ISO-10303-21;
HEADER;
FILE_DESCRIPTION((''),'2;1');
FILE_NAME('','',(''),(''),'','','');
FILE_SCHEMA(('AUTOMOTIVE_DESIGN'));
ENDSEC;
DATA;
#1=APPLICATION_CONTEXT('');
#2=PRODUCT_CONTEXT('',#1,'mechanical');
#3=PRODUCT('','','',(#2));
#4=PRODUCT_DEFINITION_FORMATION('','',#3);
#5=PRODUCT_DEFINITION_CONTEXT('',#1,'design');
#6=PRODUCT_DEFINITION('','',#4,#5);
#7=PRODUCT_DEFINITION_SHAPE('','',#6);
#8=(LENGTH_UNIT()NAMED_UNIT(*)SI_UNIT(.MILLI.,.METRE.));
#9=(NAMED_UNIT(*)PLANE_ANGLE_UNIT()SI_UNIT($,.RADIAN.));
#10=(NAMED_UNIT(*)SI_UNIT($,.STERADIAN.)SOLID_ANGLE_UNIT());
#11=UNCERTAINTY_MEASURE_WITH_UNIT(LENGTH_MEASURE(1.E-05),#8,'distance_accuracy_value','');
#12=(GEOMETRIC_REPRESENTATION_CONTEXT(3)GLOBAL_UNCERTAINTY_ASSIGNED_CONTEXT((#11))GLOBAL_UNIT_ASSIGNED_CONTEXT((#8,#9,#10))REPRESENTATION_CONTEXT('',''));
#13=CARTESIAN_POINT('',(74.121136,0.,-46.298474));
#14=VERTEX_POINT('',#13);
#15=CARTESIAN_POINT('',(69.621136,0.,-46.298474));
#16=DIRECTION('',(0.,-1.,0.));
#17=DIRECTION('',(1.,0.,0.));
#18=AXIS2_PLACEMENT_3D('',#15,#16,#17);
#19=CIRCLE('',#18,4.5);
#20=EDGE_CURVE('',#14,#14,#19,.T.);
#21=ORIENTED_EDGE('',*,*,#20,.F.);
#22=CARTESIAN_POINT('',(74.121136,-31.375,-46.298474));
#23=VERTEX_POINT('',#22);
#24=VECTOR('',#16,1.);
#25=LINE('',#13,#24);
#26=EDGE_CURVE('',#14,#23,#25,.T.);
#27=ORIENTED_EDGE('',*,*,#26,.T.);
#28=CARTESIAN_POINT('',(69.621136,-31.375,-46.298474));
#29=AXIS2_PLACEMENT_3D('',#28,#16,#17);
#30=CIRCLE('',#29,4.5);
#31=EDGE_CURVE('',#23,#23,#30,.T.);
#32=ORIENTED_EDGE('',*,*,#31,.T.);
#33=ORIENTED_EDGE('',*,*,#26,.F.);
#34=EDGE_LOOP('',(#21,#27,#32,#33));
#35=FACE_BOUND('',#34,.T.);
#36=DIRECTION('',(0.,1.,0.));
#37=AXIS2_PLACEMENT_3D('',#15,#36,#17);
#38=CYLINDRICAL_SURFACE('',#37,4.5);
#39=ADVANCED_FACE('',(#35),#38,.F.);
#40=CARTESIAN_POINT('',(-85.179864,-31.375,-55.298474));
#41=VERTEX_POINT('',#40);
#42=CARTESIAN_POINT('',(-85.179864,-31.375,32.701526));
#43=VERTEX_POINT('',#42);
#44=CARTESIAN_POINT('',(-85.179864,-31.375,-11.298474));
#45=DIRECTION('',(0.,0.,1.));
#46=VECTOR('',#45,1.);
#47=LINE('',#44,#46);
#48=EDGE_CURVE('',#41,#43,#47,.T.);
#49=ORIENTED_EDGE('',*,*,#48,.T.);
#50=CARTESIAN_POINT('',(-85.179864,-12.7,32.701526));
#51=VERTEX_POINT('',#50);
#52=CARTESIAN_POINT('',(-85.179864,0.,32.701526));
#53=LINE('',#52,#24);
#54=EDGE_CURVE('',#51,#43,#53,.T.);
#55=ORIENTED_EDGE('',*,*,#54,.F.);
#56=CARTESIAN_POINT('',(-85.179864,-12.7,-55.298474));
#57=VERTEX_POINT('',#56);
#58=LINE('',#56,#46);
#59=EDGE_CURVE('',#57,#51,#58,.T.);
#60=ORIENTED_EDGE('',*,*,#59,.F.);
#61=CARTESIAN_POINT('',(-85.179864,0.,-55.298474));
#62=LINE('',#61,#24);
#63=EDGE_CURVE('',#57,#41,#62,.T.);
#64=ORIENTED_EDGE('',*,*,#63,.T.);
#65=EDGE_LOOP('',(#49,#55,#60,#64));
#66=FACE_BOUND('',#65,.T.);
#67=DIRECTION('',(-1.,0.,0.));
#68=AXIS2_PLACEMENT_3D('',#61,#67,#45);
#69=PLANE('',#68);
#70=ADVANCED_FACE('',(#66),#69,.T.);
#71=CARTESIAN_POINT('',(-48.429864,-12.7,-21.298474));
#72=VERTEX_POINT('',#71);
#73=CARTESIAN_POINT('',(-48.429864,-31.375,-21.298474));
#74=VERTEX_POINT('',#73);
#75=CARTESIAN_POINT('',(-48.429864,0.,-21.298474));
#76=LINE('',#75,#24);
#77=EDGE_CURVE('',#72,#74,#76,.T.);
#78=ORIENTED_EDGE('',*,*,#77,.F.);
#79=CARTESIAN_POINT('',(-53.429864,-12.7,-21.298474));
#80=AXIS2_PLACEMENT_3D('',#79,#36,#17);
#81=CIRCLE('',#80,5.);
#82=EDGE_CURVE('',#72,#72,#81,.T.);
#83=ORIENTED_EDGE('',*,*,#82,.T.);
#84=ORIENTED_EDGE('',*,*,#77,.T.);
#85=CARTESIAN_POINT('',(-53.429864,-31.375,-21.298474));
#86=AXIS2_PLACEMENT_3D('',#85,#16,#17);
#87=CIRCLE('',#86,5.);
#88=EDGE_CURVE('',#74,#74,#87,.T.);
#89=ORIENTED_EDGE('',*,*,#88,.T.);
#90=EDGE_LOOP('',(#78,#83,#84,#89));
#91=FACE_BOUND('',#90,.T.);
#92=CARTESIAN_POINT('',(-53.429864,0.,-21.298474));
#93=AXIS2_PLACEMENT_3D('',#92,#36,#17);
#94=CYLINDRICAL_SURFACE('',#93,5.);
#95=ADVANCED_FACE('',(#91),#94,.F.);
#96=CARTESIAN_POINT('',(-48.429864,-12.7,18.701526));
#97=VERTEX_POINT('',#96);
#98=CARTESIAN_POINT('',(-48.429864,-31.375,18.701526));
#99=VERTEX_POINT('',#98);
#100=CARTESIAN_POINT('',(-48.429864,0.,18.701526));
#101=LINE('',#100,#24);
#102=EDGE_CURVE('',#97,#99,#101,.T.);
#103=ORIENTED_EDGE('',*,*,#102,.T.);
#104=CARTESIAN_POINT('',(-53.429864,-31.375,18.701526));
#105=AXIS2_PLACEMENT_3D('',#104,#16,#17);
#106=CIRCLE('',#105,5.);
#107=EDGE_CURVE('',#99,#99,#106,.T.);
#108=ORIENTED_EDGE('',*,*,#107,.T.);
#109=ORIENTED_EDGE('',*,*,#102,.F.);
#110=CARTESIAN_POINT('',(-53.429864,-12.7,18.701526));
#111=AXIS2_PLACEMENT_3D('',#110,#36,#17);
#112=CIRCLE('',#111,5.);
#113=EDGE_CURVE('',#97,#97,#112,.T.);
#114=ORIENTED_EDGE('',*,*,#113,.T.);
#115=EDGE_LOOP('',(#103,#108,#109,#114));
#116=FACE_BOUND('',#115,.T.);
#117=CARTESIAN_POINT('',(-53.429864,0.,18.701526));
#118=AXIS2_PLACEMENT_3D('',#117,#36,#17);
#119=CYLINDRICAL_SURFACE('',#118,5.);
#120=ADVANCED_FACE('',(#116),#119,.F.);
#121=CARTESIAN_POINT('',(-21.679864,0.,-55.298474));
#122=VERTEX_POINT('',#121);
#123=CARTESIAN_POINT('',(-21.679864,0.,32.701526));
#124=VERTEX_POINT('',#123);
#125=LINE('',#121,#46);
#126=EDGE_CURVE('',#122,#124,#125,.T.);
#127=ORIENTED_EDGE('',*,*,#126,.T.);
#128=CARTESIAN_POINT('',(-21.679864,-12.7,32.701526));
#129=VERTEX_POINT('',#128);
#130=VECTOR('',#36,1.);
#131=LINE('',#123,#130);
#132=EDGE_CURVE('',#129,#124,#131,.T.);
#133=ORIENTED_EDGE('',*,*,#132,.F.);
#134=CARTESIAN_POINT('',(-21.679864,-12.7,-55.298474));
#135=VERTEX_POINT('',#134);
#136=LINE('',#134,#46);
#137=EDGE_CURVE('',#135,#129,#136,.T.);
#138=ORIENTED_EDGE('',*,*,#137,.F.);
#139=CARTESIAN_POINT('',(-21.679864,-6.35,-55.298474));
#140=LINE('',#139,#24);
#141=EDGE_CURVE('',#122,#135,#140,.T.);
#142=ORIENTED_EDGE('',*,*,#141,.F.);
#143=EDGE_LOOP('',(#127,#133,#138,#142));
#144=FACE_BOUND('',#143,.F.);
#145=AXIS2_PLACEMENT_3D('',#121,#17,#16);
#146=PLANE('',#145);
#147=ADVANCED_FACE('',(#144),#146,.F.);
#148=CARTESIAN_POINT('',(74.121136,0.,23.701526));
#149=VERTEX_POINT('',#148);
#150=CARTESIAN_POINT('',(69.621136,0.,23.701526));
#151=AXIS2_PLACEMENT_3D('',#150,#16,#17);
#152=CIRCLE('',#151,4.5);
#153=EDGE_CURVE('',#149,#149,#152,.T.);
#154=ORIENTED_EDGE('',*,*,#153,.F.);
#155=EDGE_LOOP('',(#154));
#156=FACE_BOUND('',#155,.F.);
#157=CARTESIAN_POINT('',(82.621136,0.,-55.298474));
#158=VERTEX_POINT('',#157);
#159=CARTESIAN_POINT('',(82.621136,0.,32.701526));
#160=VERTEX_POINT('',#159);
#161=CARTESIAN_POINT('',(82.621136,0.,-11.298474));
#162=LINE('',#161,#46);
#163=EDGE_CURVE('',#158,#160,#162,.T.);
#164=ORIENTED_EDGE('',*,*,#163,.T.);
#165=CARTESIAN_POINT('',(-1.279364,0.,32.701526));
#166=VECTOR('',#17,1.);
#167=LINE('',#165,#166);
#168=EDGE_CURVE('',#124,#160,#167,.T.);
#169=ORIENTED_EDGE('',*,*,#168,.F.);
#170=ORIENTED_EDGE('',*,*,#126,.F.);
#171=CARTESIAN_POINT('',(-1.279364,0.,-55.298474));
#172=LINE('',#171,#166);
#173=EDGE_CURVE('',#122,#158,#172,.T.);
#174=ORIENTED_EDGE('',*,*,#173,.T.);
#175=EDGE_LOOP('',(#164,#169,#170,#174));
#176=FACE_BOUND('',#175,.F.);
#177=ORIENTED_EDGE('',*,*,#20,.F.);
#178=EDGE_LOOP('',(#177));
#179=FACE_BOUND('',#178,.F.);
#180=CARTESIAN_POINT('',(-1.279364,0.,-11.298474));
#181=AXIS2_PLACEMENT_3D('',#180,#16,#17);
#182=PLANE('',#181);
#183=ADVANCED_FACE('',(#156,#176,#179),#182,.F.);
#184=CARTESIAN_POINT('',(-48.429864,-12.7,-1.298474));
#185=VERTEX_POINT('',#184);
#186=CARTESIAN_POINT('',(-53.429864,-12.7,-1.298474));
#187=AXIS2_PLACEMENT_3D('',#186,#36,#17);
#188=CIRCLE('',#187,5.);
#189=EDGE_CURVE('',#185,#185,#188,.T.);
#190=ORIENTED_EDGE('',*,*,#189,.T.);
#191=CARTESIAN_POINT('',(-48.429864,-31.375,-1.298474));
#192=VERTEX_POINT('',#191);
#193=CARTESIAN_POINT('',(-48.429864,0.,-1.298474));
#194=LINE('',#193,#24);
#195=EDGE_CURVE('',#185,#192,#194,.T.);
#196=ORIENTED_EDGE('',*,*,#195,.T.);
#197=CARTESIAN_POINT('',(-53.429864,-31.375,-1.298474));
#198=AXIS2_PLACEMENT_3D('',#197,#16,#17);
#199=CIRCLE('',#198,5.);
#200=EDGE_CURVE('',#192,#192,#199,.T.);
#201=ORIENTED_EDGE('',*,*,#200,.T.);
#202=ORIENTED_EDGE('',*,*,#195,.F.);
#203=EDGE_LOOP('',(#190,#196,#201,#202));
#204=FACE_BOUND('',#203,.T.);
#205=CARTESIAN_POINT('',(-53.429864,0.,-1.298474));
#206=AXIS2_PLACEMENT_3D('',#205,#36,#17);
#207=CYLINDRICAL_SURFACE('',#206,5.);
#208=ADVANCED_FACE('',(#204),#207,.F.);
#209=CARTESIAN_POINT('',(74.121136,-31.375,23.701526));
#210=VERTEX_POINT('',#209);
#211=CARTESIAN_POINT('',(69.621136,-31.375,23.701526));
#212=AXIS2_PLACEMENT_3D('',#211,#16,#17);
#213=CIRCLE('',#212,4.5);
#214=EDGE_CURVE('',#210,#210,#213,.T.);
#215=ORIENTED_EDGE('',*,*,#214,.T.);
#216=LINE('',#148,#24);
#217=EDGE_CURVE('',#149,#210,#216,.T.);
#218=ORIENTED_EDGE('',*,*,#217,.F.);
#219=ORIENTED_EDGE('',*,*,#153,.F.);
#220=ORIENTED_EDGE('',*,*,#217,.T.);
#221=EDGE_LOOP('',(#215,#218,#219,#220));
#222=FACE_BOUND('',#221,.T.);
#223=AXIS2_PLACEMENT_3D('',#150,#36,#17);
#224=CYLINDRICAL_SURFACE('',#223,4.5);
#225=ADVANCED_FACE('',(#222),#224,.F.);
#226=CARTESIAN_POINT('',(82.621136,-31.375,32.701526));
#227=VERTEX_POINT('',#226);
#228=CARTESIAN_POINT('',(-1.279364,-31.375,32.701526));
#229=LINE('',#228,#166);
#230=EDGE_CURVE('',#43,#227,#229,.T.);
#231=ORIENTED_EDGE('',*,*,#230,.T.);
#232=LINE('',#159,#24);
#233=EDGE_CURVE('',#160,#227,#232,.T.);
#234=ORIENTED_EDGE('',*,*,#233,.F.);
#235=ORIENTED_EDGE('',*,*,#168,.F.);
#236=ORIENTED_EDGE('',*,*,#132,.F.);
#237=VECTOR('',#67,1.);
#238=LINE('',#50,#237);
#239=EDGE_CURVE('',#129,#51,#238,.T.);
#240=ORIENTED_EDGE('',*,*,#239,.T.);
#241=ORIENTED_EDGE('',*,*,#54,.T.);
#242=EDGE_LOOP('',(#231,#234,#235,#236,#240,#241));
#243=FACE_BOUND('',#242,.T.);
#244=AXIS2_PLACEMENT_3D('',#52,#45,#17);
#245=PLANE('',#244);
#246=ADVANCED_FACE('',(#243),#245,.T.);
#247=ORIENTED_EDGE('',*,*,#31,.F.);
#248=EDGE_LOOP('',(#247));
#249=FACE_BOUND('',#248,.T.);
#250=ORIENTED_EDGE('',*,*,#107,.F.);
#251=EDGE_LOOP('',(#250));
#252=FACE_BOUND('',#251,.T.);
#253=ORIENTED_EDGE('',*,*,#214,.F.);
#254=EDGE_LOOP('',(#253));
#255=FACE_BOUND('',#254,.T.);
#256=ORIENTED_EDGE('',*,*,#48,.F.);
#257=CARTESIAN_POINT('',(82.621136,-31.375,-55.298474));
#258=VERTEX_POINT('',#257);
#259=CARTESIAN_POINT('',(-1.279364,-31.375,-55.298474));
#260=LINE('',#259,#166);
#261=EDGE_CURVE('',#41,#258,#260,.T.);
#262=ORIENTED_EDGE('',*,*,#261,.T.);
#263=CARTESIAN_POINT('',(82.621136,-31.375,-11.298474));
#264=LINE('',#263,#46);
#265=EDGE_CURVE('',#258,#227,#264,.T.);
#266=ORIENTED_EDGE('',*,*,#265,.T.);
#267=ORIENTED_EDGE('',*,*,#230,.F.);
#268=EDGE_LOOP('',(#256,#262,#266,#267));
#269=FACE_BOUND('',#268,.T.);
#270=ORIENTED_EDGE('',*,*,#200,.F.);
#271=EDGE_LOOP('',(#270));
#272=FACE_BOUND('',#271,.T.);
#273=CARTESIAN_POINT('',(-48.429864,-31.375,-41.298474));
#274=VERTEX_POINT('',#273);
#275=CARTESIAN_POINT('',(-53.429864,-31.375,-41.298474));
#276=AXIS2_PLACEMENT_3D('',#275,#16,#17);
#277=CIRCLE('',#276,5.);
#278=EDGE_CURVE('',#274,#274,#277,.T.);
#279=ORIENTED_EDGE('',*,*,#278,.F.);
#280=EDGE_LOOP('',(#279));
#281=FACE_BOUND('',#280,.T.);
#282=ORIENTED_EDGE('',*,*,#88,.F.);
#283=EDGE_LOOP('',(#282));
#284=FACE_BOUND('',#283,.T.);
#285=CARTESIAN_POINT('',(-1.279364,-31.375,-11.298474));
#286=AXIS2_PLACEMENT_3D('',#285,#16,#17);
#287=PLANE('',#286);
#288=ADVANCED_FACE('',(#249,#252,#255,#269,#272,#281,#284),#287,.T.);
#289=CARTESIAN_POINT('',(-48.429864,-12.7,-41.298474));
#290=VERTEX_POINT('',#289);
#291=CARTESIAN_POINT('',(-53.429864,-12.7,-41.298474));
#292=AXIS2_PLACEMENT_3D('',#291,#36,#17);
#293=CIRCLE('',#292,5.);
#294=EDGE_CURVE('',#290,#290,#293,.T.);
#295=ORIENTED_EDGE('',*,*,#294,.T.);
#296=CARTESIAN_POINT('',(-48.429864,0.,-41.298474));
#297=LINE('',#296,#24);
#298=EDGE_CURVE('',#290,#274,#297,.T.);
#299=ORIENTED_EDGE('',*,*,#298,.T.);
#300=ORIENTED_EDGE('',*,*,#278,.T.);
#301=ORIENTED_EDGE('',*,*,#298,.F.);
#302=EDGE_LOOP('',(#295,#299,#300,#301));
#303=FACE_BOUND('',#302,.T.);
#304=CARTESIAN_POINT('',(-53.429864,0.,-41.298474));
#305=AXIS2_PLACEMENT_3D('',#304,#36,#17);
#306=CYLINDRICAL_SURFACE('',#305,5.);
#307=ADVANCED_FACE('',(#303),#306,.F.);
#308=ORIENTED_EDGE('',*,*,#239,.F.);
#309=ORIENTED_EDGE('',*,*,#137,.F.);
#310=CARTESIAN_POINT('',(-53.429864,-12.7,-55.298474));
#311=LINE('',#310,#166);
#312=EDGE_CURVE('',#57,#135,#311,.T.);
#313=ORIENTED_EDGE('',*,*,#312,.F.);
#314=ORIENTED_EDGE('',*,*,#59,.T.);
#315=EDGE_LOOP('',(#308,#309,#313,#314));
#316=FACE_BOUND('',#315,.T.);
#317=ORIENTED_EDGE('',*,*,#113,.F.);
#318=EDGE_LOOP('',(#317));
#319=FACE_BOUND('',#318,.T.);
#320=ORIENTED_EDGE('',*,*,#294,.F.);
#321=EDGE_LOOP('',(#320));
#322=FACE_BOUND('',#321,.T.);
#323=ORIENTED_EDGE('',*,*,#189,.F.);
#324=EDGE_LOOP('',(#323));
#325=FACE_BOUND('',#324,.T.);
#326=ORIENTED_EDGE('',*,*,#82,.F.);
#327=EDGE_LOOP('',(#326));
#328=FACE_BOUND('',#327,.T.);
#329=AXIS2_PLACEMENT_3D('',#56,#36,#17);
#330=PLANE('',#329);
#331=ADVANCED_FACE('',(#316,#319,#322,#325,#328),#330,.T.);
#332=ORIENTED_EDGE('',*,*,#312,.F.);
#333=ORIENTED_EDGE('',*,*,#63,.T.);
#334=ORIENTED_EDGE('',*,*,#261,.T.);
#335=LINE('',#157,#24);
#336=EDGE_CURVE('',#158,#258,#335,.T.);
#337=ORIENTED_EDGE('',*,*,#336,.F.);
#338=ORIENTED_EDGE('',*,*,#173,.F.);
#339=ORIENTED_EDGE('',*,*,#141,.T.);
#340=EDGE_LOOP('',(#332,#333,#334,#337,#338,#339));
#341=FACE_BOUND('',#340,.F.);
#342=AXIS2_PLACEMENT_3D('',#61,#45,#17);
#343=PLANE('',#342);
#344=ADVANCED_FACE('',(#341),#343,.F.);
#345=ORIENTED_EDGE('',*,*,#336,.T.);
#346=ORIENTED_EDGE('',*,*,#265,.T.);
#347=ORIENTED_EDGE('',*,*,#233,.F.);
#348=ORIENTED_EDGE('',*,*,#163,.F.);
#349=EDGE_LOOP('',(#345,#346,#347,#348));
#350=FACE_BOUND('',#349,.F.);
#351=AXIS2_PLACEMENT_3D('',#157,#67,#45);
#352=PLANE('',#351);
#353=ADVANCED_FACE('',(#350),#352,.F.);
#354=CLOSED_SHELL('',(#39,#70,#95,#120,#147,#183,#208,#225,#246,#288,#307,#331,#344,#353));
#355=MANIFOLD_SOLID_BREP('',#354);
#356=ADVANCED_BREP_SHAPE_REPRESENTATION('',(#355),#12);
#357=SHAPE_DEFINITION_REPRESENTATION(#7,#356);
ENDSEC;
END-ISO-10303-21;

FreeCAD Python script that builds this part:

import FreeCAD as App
import Part
import Sketcher
from FreeCAD import Vector
Q = App.Units.Quantity

doc = App.newDocument("Part")
body = doc.addObject("PartDesign::Body", "Body")

sketch1 = doc.addObject("Sketcher::SketchObject", "Sketch")
body.addObject(sketch1)
sketch1.AttachmentSupport = (doc.XZ_Plane, [""])
sketch1.MapMode = "FlatFace"
sketch1.addGeometry([
    Part.LineSegment(Vector(-85.2, 32.7, 0), Vector(-85.2, -55.3, 0)),
    Part.LineSegment(Vector(-85.2, -55.3, 0), Vector(82.6, -55.3, 0)),
    Part.LineSegment(Vector(82.6, -55.3, 0), Vector(82.6, 32.7, 0)),
    Part.LineSegment(Vector(82.6, 32.7, 0), Vector(-85.2, 32.7, 0)),
    Part.Circle(Vector(-53.4, -41.3, 0), Vector(0, 0, 1), 5),
    Part.Circle(Vector(-53.4, -21.3, 0), Vector(0, 0, 1), 5),
    Part.Circle(Vector(69.6, -46.3, 0), Vector(0, 0, 1), 4.5),
    Part.Circle(Vector(-53.4, -1.3, 0), Vector(0, 0, 1), 5),
    Part.Circle(Vector(-53.4, 18.7, 0), Vector(0, 0, 1), 5),
    Part.Circle(Vector(69.6, 23.7, 0), Vector(0, 0, 1), 4.5),
], False)
sketch1.addConstraint([
    Sketcher.Constraint("Coincident", 0, 2, 1, 1),
    Sketcher.Constraint("Coincident", 1, 2, 2, 1),
    Sketcher.Constraint("Coincident", 2, 2, 3, 1),
    Sketcher.Constraint("Coincident", 3, 2, 0, 1),
    Sketcher.Constraint("Vertical", 0),
    Sketcher.Constraint("Horizontal", 1),
    Sketcher.Constraint("Vertical", 2),
    Sketcher.Constraint("Horizontal", 3),
    Sketcher.Constraint("Equal", 4, 5),
    Sketcher.Constraint("Equal", 5, 7),
    Sketcher.Constraint("Equal", 7, 8),
    Sketcher.Constraint("Equal", 6, 9),
    Sketcher.Constraint("Vertical", 4, 3, 5, 3),
    Sketcher.Constraint("Vertical", 5, 3, 7, 3),
    Sketcher.Constraint("Vertical", 7, 3, 8, 3),
    Sketcher.Constraint("Vertical", 6, 3, 9, 3),
    Sketcher.Constraint("Diameter", 4, Q("10 mm")),
    Sketcher.Constraint("Diameter", 6, Q("9 mm")),
    Sketcher.Constraint("DistanceY", 0, 2, 0, 1, Q("88 mm")),
    Sketcher.Constraint("DistanceY", 4, 3, 5, 3, Q("20 mm")),
    Sketcher.Constraint("DistanceY", 6, 3, 4, 3, Q("5 mm")),
    Sketcher.Constraint("DistanceY", 5, 3, 7, 3, Q("20 mm")),
    Sketcher.Constraint("DistanceY", 7, 3, 8, 3, Q("20 mm")),
    Sketcher.Constraint("DistanceY", 6, 3, 9, 3, Q("70 mm")),
    Sketcher.Constraint("DistanceY", 0, 2, 4, 3, Q("14 mm")),
    Sketcher.Constraint("DistanceX", 6, 3, 1, 2, Q("13 mm")),
    Sketcher.Constraint("DistanceX", 1, 1, 1, 2, Q("167.801 mm")),
    Sketcher.Constraint("DistanceX", 0, 2, 4, 3, Q("31.75 mm")),
    Sketcher.Constraint("DistanceX", 4, 3, -1, 1, Q("53.429864 mm")),
    Sketcher.Constraint("DistanceY", 4, 3, -1, 1, Q("41.298474 mm")),
])
pad1 = doc.addObject("PartDesign::Pad", "Pad")
body.addObject(pad1)
pad1.Profile = sketch1
pad1.Length = 31.375

sketch2 = doc.addObject("Sketcher::SketchObject", "Sketch001")
body.addObject(sketch2)
sketch2.AttachmentSupport = (doc.XY_Plane, [""])
sketch2.MapMode = "FlatFace"
sketch2.AttachmentOffset = App.Placement(Vector(0, 0, -55.298474), App.Rotation())
sketch2.addGeometry([
    Part.LineSegment(Vector(-85, -13, 0), Vector(-85, 0, 0)),
    Part.LineSegment(Vector(-85, 0, 0), Vector(-22, 0, 0)),
    Part.LineSegment(Vector(-22, 0, 0), Vector(-22, -13, 0)),
    Part.LineSegment(Vector(-22, -13, 0), Vector(-85, -13, 0)),
], False)
sketch2.addConstraint([
    Sketcher.Constraint("Coincident", 0, 2, 1, 1),
    Sketcher.Constraint("Coincident", 1, 2, 2, 1),
    Sketcher.Constraint("Coincident", 2, 2, 3, 1),
    Sketcher.Constraint("Coincident", 3, 2, 0, 1),
    Sketcher.Constraint("Vertical", 0),
    Sketcher.Constraint("Horizontal", 1),
    Sketcher.Constraint("Vertical", 2),
    Sketcher.Constraint("Horizontal", 3),
    Sketcher.Constraint("PointOnObject", 0, 2, -1),
    Sketcher.Constraint("DistanceX", 1, 1, 1, 2, Q("63.5 mm")),
    Sketcher.Constraint("DistanceY", 0, 1, 0, 2, Q("12.7 mm")),
    Sketcher.Constraint("DistanceX", 0, 2, -1, 1, Q("85.179864 mm")),
])
pocket1 = doc.addObject("PartDesign::Pocket", "Pocket")
body.addObject(pocket1)
pocket1.Profile = sketch2
pocket1.Type = "ThroughAll"
pocket1.Reversed = True

doc.recompute()
